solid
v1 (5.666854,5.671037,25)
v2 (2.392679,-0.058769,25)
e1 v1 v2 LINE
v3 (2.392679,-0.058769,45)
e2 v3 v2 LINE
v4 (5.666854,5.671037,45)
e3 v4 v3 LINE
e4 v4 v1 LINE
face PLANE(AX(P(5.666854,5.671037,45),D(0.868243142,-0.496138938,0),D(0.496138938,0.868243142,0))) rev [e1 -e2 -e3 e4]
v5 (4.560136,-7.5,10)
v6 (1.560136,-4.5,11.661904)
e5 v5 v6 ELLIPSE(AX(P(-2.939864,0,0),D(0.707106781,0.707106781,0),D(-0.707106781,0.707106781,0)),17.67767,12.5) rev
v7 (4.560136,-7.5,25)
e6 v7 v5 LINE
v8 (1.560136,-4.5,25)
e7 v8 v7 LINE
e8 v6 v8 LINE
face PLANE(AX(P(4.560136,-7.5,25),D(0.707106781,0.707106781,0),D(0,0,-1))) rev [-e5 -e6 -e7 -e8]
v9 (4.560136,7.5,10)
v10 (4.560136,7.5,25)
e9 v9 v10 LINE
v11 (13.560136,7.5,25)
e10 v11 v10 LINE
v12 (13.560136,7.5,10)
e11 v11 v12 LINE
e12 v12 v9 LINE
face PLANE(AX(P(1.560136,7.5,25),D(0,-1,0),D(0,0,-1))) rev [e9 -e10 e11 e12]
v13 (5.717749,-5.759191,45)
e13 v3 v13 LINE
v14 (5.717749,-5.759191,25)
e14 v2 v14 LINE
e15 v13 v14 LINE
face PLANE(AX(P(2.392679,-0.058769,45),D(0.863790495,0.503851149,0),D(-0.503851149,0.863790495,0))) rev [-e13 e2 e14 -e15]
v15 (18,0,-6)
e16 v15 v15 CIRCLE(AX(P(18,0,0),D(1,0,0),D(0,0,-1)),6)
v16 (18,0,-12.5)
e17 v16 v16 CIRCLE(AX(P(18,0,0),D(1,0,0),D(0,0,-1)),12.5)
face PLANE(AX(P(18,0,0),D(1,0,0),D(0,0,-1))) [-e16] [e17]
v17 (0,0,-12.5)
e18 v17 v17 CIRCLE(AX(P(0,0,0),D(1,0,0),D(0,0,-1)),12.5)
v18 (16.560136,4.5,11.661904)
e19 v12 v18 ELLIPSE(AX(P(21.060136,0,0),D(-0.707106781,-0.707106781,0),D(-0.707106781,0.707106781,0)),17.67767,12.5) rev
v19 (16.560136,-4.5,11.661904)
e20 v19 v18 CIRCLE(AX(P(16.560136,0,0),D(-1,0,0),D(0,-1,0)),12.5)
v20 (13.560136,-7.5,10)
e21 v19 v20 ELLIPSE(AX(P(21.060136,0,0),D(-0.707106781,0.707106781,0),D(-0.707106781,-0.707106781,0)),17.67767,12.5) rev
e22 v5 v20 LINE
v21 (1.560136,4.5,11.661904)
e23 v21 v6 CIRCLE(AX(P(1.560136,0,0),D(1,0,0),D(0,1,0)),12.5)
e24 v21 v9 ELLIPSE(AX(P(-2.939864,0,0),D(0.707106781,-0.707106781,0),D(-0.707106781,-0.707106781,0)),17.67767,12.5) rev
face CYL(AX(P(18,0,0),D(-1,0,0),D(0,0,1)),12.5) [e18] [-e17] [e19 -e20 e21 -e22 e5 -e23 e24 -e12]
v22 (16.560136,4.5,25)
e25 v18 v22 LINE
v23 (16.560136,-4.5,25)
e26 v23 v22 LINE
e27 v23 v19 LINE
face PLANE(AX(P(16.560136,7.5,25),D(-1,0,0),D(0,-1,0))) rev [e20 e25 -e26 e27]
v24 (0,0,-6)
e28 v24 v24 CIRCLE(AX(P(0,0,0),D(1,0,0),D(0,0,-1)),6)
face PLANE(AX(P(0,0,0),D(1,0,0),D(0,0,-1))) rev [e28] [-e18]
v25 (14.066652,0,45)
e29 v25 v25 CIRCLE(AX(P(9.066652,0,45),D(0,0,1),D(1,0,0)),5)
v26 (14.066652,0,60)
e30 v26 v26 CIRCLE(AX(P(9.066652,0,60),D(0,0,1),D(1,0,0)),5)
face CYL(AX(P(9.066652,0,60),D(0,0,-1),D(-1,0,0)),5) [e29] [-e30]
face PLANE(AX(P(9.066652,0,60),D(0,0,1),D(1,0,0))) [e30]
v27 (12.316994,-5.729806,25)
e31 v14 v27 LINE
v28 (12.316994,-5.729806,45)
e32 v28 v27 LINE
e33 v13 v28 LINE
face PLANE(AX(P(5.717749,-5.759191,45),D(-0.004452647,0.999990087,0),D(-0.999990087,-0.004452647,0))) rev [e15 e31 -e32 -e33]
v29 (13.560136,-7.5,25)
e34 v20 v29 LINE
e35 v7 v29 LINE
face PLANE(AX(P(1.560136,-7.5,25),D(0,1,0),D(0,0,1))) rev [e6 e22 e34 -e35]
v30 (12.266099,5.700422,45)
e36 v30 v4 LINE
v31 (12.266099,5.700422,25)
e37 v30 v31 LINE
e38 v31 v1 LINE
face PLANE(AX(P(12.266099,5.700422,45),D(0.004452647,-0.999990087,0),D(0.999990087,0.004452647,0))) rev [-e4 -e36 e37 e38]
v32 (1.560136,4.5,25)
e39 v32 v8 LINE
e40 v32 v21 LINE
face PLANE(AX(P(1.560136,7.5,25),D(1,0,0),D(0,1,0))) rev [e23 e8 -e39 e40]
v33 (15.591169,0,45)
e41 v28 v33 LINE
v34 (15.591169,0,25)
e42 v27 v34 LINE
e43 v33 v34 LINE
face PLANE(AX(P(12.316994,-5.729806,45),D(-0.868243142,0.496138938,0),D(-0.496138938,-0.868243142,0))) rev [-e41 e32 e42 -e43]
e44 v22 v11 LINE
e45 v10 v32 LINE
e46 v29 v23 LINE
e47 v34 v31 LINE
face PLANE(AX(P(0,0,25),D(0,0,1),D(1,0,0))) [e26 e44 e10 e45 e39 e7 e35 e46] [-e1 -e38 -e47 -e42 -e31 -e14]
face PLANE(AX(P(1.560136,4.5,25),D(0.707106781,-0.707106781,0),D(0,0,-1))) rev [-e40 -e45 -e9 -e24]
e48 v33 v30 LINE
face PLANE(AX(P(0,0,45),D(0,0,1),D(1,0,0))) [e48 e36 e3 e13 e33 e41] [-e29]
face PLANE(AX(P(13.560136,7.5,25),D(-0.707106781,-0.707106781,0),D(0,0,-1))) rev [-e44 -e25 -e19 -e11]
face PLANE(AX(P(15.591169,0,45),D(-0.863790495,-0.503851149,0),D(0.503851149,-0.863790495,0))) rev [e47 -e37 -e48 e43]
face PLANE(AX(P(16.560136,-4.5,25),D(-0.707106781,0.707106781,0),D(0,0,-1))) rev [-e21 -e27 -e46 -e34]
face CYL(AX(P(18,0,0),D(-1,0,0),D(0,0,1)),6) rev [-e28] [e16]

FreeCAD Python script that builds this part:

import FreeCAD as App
import Part
import Sketcher
from FreeCAD import Vector


def edges_at(feature, points):
    """Names of the edges that pass closest to the given points."""
    edges = feature.Shape.Edges
    near = lambda p: min(range(len(edges)), key=lambda i: edges[i].distToShape(Part.Vertex(*p))[0])
    return sorted({f"Edge{near(p) + 1}" for p in points})

doc = App.newDocument("Part")
params = doc.addObject("Spreadsheet::Sheet", "Params")
for row, (alias, value) in enumerate([
    ("sketch1_diameter", "25 mm"),
    ("sketch1_diameter2", "12 mm"),
    ("pad1_length", "18 mm"),
    ("sketch2_width", "15 mm"),
    ("pad2_length", "25 mm"),
    ("pad3_length", "20 mm"),
    ("chamfer_size", "3 mm"),
    ("sketch4_diameter", "10 mm"),
    ("pad4_length", "15 mm"),
    ("sketch5_diameter", "12 mm"),
], start=1):
    params.set(f"A{row}", alias)
    params.set(f"B{row}", "=" + value)
    params.setAlias(f"B{row}", alias)

body = doc.addObject("PartDesign::Body", "Body")

# Sketch on YZ plane
sketch1 = body.newObject("Sketcher::SketchObject", "Sketch")
sketch1.AttachmentSupport = (doc.getObject("YZ_Plane"), [""])
sketch1.MapMode = "FlatFace"
sketch1.addGeometry(Part.Circle(Vector(0, 0, 0), Vector(0, 0, 1), 12.5), False)
sketch1.addGeometry(Part.Circle(Vector(0, 0, 0), Vector(0, 0, 1), 6), False)
sketch1.addConstraint(Sketcher.Constraint("Coincident", 0, 3, -1, 1))
sketch1.addConstraint(Sketcher.Constraint("Coincident", 1, 3, -1, 1))
sketch1.addConstraint(Sketcher.Constraint("Diameter", 0, 25.0))
sketch1.addConstraint(Sketcher.Constraint("Diameter", 1, 12.0))
sketch1.setExpression("Constraints[2]", "Params.sketch1_diameter")
sketch1.setExpression("Constraints[3]", "Params.sketch1_diameter2")
pad1 = body.newObject("PartDesign::Pad", "Pad")
pad1.Profile = sketch1
pad1.setExpression("Length", "Params.pad1_length")

# Sketch on XY plane
sketch2 = body.newObject("Sketcher::SketchObject", "Sketch001")
sketch2.AttachmentSupport = (doc.getObject("XY_Plane"), [""])
sketch2.MapMode = "FlatFace"
sketch2.addGeometry(Part.LineSegment(Vector(1.560136, 7.5, 0), Vector(1.560136, -7.5, 0)), False)
sketch2.addGeometry(Part.LineSegment(Vector(1.560136, -7.5, 0), Vector(16.560136, -7.5, 0)), False)
sketch2.addGeometry(Part.LineSegment(Vector(16.560136, -7.5, 0), Vector(16.560136, 7.5, 0)), False)
sketch2.addGeometry(Part.LineSegment(Vector(16.560136, 7.5, 0), Vector(1.560136, 7.5, 0)), False)
sketch2.addConstraint(Sketcher.Constraint("Coincident", 0, 2, 1, 1))
sketch2.addConstraint(Sketcher.Constraint("Coincident", 1, 2, 2, 1))
sketch2.addConstraint(Sketcher.Constraint("Coincident", 2, 2, 3, 1))
sketch2.addConstraint(Sketcher.Constraint("Coincident", 3, 2, 0, 1))
sketch2.addConstraint(Sketcher.Constraint("Vertical", 0))
sketch2.addConstraint(Sketcher.Constraint("Horizontal", 1))
sketch2.addConstraint(Sketcher.Constraint("Vertical", 2))
sketch2.addConstraint(Sketcher.Constraint("Horizontal", 3))
sketch2.addConstraint(Sketcher.Constraint("Equal", 3, 0))
sketch2.addConstraint(Sketcher.Constraint("DistanceX", 1, 1, 1, 2, 15.0))
sketch2.addConstraint(Sketcher.Constraint("DistanceY", 0, 2, -1, 1, 7.5))
sketch2.addConstraint(Sketcher.Constraint("DistanceX", -1, 1, 0, 2, 1.560136))
sketch2.setExpression("Constraints[9]", "Params.sketch2_width")
pad2 = body.newObject("PartDesign::Pad", "Pad001")
pad2.Profile = sketch2
pad2.setExpression("Length", "Params.pad2_length")

# Sketch on XY plane
sketch3 = body.newObject("Sketcher::SketchObject", "Sketch002")
sketch3.AttachmentSupport = (doc.getObject("XY_Plane"), [""])
sketch3.MapMode = "FlatFace"
sketch3.AttachmentOffset = App.Placement(Vector(0, 0, 25), App.Rotation())
sketch3.addGeometry(Part.LineSegment(Vector(12.266099, 5.700422, 0), Vector(5.666854, 5.671037, 0)), False)
sketch3.addGeometry(Part.LineSegment(Vector(5.666854, 5.671037, 0), Vector(2.392679, -0.058769, 0)), False)
sketch3.addGeometry(Part.LineSegment(Vector(2.392679, -0.058769, 0), Vector(5.717749, -5.759191, 0)), False)
sketch3.addGeometry(Part.LineSegment(Vector(5.717749, -5.759191, 0), Vector(12.316994, -5.729806, 0)), False)
sketch3.addGeometry(Part.LineSegment(Vector(12.316994, -5.729806, 0), Vector(15.591169, 0, 0)), False)
sketch3.addGeometry(Part.LineSegment(Vector(15.591169, 0, 0), Vector(12.266099, 5.700422, 0)), False)
sketch3.addConstraint(Sketcher.Constraint("Coincident", 0, 2, 1, 1))
sketch3.addConstraint(Sketcher.Constraint("Coincident", 1, 2, 2, 1))
sketch3.addConstraint(Sketcher.Constraint("Coincident", 2, 2, 3, 1))
sketch3.addConstraint(Sketcher.Constraint("Coincident", 3, 2, 4, 1))
sketch3.addConstraint(Sketcher.Constraint("Coincident", 4, 2, 5, 1))
sketch3.addConstraint(Sketcher.Constraint("Coincident", 5, 2, 0, 1))
sketch3.addConstraint(Sketcher.Constraint("PointOnObject", 4, 2, -1))
sketch3.addConstraint(Sketcher.Constraint("Parallel", 0, 3))
sketch3.addConstraint(Sketcher.Constraint("Parallel", 1, 4))
sketch3.addConstraint(Sketcher.Constraint("Parallel", 2, 5))
sketch3.addConstraint(Sketcher.Constraint("Equal", 0, 1))
sketch3.addConstraint(Sketcher.Constraint("Equal", 1, 2))
sketch3.addConstraint(Sketcher.Constraint("Equal", 2, 3))
sketch3.addConstraint(Sketcher.Constraint("DistanceX", -1, 1, 5, 2, 12.266099))
sketch3.addConstraint(Sketcher.Constraint("Distance", 0, 6.599311))
sketch3.addConstraint(Sketcher.Constraint("DistanceX", -1, 1, 1, 2, 2.392679))
sketch3.addConstraint(Sketcher.Constraint("DistanceY", 1, 2, -1, 1, 0.058769))
sketch3.addConstraint(Sketcher.Constraint("DistanceX", -1, 1, 2, 2, 5.717749))
pad3 = body.newObject("PartDesign::Pad", "Pad002")
pad3.Profile = sketch3
pad3.setExpression("Length", "Params.pad3_length")
doc.recompute()

chamfer = body.newObject("PartDesign::Chamfer", "Chamfer")
chamfer.Base = (pad3, edges_at(pad3, [
    (1.56, -7.5, 17.5),
    (16.56, 7.5, 17.5),
    (1.56, 7.5, 17.5),
    (16.56, -7.5, 17.5),
]))
chamfer.setExpression("Size", "Params.chamfer_size")

# Sketch on XY plane
sketch4 = body.newObject("Sketcher::SketchObject", "Sketch003")
sketch4.AttachmentSupport = (doc.getObject("XY_Plane"), [""])
sketch4.MapMode = "FlatFace"
sketch4.AttachmentOffset = App.Placement(Vector(0, 0, 45), App.Rotation())
sketch4.addGeometry(Part.Circle(Vector(9.066652, 0, 0), Vector(0, 0, 1), 5), False)
sketch4.addConstraint(Sketcher.Constraint("PointOnObject", 0, 3, -1))
sketch4.addConstraint(Sketcher.Constraint("Diameter", 0, 10.0))
sketch4.addConstraint(Sketcher.Constraint("DistanceX", -1, 1, 0, 3, 9.066652))
sketch4.setExpression("Constraints[1]", "Params.sketch4_diameter")
pad4 = body.newObject("PartDesign::Pad", "Pad003")
pad4.Profile = sketch4
pad4.setExpression("Length", "Params.pad4_length")

# Sketch on YZ plane
sketch5 = body.newObject("Sketcher::SketchObject", "Sketch004")
sketch5.AttachmentSupport = (doc.getObject("YZ_Plane"), [""])
sketch5.MapMode = "FlatFace"
sketch5.addGeometry(Part.Circle(Vector(0, 0, 0), Vector(0, 0, 1), 6), False)
sketch5.addConstraint(Sketcher.Constraint("Coincident", 0, 3, -1, 1))
sketch5.addConstraint(Sketcher.Constraint("Diameter", 0, 12.0))
sketch5.setExpression("Constraints[1]", "Params.sketch5_diameter")
pocket1 = body.newObject("PartDesign::Pocket", "Pocket")
pocket1.Profile = sketch5
pocket1.Type = "ThroughAll"
pocket1.Midplane = True

doc.recompute()
